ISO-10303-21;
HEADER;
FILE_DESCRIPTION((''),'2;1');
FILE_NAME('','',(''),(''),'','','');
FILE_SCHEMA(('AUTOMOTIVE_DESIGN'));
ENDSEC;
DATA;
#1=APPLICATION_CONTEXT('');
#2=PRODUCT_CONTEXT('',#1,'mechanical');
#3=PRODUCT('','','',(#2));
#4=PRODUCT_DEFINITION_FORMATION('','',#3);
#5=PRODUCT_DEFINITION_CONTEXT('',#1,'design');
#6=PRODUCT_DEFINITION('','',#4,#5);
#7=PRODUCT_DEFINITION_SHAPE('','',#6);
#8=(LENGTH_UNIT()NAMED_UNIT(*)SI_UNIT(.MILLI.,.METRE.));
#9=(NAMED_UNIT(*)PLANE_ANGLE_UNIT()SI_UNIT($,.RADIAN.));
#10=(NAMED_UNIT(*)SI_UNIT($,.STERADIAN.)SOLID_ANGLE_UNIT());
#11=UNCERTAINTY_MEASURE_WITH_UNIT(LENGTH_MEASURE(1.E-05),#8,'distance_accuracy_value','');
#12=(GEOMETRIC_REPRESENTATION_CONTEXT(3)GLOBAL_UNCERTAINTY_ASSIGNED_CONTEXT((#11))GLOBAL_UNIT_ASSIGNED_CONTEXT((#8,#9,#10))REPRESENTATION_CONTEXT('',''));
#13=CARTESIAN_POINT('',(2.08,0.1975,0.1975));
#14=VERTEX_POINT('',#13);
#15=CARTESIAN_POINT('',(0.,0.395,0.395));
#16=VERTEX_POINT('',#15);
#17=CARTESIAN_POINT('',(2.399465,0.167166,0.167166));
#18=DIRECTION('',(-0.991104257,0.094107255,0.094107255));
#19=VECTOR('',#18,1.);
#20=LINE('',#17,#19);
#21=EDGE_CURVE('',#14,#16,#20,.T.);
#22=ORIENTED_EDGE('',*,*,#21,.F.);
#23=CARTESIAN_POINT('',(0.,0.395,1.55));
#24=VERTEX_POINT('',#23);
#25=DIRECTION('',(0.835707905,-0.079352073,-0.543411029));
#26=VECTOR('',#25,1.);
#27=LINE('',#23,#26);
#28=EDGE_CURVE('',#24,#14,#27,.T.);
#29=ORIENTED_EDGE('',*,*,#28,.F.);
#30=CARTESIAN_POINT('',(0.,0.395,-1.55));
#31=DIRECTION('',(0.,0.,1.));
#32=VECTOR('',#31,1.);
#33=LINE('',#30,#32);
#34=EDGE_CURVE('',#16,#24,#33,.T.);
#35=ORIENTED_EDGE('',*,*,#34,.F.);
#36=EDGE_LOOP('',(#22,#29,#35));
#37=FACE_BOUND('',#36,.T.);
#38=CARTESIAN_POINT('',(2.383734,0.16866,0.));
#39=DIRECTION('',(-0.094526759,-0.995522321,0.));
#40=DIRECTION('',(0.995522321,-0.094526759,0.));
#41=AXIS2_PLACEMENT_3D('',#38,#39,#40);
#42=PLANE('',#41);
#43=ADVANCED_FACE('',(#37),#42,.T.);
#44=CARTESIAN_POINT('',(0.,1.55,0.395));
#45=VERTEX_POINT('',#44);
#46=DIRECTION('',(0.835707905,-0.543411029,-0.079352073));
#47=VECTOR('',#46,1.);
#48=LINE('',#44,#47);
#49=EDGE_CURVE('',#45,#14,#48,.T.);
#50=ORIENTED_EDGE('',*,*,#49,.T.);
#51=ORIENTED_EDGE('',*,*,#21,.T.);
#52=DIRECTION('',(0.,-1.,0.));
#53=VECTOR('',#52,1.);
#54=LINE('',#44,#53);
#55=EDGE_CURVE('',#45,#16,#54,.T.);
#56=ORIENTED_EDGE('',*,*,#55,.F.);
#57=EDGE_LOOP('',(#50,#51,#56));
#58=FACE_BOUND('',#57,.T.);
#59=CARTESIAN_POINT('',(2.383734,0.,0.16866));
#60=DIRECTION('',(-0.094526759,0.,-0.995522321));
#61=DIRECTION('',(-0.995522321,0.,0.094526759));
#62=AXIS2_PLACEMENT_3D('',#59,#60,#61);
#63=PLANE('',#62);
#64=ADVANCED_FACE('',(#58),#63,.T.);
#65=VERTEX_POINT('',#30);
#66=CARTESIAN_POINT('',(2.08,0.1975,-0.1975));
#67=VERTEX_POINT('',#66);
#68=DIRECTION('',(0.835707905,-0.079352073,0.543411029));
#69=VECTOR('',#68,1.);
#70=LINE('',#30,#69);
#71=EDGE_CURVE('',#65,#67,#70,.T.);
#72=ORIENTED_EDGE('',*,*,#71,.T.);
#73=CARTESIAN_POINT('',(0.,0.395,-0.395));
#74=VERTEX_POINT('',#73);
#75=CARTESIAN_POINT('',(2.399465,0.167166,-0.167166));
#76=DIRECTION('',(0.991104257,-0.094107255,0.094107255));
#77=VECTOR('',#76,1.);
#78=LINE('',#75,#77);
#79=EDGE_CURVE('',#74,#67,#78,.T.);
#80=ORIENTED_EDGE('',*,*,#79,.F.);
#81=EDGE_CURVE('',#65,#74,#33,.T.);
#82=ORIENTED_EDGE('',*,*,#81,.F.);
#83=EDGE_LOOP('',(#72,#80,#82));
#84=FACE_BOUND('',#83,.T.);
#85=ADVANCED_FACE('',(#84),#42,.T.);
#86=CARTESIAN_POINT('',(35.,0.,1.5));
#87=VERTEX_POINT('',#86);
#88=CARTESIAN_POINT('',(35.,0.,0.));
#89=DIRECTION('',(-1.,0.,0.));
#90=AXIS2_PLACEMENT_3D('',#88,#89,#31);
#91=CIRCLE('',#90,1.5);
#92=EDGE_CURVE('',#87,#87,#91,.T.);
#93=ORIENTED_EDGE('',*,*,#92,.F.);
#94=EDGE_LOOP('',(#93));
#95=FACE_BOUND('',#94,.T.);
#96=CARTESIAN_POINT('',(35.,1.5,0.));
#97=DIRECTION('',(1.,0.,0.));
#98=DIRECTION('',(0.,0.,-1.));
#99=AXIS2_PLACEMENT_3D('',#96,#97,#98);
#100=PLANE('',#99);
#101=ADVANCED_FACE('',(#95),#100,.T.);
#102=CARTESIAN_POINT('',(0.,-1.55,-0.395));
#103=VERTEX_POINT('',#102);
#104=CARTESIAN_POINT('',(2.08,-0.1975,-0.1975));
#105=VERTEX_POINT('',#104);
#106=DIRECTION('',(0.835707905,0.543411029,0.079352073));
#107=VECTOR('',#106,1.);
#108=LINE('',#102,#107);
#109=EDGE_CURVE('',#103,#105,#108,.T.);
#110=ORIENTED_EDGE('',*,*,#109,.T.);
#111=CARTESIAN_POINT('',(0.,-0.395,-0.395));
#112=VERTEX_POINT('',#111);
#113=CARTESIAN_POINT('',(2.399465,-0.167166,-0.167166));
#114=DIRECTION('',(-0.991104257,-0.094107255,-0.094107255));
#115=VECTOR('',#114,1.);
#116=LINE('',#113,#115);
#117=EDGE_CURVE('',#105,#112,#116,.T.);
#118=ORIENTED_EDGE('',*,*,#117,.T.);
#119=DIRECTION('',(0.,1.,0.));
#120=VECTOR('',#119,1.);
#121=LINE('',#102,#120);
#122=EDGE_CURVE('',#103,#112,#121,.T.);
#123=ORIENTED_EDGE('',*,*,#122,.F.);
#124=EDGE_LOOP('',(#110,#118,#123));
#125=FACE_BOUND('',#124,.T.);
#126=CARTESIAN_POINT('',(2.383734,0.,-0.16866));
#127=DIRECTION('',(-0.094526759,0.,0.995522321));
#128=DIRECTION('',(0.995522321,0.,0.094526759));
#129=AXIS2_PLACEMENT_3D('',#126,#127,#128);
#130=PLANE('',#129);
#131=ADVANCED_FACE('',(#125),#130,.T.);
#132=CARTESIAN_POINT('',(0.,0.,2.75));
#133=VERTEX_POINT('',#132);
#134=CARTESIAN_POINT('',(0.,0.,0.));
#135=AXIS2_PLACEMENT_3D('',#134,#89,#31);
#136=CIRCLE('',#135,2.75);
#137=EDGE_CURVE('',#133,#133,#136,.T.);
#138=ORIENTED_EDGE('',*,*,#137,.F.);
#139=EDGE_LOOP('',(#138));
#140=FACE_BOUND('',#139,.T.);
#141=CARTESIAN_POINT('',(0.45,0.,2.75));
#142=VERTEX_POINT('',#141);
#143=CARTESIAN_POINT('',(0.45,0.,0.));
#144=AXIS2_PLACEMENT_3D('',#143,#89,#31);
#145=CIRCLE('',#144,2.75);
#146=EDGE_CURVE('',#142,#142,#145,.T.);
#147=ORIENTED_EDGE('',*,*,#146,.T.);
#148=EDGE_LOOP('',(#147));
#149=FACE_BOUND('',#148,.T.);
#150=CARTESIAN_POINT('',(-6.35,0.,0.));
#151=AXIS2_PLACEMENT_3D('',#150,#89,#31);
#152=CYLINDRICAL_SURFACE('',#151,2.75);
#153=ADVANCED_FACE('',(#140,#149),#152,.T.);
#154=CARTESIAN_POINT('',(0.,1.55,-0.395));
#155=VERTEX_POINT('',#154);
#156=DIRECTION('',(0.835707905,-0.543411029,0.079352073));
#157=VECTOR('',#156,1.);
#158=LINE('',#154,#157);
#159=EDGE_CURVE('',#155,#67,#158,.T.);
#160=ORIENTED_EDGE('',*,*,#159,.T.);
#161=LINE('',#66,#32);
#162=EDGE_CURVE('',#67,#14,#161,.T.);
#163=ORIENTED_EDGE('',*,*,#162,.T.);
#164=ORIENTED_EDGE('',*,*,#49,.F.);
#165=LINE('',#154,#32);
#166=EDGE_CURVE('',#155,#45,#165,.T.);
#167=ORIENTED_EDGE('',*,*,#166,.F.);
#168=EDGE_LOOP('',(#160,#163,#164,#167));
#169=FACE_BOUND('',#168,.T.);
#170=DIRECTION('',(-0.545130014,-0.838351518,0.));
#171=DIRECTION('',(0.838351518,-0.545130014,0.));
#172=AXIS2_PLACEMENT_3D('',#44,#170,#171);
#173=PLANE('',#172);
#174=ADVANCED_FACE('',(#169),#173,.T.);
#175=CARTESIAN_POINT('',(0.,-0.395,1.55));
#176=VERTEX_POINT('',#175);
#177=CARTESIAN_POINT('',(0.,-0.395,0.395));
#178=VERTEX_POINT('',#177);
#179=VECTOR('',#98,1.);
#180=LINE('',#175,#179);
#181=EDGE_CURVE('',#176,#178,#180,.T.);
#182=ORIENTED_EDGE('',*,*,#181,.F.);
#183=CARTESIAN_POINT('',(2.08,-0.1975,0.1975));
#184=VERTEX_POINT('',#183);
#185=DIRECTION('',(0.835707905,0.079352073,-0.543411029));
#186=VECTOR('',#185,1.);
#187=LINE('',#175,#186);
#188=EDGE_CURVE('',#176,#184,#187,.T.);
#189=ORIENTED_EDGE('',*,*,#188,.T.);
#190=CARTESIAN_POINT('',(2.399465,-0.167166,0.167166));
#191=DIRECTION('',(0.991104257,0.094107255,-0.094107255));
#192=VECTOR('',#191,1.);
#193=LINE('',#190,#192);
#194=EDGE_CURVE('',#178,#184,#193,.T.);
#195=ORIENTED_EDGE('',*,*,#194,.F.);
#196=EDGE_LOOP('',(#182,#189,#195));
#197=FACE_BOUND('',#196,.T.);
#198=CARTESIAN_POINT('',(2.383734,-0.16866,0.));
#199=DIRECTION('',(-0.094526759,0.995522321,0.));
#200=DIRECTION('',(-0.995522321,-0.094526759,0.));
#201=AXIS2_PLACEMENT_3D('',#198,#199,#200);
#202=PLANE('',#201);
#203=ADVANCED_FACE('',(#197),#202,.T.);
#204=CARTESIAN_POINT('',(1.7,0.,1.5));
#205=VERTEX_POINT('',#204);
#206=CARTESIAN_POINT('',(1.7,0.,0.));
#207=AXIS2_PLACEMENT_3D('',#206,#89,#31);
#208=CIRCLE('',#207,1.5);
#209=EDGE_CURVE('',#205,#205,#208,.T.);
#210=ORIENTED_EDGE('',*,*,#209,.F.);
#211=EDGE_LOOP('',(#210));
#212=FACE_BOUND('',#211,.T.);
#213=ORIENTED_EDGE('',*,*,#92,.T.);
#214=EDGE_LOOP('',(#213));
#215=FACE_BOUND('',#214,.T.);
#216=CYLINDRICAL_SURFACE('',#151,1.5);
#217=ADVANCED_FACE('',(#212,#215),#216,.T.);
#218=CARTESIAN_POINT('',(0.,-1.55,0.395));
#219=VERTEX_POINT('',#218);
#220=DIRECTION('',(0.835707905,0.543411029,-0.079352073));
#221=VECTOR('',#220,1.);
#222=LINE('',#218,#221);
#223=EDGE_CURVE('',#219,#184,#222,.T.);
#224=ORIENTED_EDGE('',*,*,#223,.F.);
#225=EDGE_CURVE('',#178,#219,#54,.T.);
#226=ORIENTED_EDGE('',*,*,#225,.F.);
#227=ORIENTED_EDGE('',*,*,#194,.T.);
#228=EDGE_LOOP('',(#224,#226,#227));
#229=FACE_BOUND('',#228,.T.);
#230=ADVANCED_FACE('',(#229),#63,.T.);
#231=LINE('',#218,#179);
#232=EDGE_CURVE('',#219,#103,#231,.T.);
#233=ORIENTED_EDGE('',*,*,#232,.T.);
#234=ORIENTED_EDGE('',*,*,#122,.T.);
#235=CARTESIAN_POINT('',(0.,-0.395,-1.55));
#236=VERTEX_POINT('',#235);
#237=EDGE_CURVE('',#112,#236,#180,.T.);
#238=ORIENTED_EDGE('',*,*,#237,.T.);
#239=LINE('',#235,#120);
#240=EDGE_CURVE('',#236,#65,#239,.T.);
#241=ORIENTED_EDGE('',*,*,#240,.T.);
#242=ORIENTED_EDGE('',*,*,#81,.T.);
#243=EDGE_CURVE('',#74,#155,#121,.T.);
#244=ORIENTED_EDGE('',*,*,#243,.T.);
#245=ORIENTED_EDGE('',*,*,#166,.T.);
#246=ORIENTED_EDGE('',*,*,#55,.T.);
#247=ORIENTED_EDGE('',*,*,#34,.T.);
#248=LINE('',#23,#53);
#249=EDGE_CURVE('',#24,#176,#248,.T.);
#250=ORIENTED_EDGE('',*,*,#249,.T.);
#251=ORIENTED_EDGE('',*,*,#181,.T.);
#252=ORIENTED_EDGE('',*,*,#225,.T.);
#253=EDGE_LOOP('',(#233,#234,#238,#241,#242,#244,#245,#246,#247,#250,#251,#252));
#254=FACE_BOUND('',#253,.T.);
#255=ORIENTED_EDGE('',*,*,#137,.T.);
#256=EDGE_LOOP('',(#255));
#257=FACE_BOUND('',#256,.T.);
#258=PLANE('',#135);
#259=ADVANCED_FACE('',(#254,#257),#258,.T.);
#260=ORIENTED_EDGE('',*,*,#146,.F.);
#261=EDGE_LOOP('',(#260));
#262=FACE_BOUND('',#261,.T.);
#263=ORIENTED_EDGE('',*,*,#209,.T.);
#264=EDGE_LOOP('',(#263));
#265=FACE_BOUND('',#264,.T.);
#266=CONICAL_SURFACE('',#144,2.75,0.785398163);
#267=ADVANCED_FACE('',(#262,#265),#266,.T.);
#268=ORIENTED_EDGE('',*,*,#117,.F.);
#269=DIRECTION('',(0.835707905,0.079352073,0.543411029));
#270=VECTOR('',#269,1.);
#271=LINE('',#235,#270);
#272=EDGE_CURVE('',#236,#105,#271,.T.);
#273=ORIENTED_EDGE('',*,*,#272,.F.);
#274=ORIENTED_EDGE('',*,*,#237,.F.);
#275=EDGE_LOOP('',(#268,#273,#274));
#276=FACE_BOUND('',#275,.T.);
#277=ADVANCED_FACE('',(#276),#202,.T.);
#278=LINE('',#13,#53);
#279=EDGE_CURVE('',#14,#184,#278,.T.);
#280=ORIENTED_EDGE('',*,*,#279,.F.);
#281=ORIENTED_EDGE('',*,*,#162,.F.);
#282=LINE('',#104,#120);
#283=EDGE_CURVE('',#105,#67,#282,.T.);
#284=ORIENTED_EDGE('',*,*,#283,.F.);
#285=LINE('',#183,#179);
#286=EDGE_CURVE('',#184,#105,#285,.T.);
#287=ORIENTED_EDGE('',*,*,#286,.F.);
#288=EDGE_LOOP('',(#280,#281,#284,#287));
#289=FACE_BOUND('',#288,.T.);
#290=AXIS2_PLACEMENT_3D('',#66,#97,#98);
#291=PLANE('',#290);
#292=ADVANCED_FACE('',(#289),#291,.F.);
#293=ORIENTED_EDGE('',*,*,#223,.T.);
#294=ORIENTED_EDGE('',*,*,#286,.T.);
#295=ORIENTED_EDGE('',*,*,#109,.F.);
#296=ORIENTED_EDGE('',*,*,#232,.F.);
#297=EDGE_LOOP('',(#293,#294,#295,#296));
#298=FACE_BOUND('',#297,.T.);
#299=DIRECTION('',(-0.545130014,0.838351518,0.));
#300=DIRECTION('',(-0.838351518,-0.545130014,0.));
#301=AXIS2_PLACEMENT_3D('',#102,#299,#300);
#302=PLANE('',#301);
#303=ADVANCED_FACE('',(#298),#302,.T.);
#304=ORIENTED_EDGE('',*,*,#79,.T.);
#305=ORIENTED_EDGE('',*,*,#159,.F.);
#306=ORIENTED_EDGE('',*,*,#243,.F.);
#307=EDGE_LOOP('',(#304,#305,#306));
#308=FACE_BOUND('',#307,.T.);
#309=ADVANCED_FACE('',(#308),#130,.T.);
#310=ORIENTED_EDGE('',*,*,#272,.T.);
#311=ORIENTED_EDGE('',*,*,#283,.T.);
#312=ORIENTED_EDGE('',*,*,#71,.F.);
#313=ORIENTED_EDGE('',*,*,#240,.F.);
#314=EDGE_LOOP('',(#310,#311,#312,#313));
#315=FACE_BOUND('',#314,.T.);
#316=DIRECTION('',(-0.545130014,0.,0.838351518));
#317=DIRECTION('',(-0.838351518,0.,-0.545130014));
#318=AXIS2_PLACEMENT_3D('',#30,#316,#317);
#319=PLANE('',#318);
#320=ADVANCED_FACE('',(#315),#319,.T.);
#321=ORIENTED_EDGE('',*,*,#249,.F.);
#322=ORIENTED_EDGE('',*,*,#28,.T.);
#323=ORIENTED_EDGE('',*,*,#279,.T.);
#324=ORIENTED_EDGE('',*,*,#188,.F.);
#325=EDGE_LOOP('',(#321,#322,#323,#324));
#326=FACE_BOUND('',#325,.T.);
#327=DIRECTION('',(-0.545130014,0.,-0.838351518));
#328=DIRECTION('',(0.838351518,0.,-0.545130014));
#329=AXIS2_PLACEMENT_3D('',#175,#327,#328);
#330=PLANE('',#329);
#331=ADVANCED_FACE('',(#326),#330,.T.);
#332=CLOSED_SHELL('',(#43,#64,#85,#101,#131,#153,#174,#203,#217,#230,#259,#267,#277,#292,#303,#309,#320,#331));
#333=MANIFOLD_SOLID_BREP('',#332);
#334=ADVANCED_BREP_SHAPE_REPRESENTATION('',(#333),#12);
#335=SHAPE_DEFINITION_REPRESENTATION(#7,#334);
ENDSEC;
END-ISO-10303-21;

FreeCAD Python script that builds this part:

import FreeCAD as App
import Part
import Sketcher

V = App.Vector
Q = App.Units.Quantity


def add_polygon(sketch, points):
    """Adds a closed chain of lines whose ends are joined by coincident constraints."""
    first, n = sketch.GeometryCount, len(points)
    for a, b in zip(points, points[1:] + points[:1]):
        sketch.addGeometry(Part.LineSegment(App.Vector(*a, 0), App.Vector(*b, 0)), False)
    for i in range(n):
        sketch.addConstraint(Sketcher.Constraint("Coincident", first + i, 2, first + (i + 1) % n, 1))

doc = App.newDocument("Part")
body = doc.addObject("PartDesign::Body", "Body")

# Sketch on XY plane
sketch1 = doc.addObject("Sketcher::SketchObject", "Sketch")
body.addObject(sketch1)
sketch1.AttachmentSupport = (doc.XY_Plane, [""])
sketch1.MapMode = "FlatFace"
add_polygon(sketch1, [(0, 2.75), (0, 0), (35, 0), (35, 1.5), (1.7, 1.5), (0.45, 2.75)])  # lines 0-5
sketch1.addConstraint(Sketcher.Constraint("Vertical", 0))
sketch1.addConstraint(Sketcher.Constraint("Horizontal", 1))
sketch1.addConstraint(Sketcher.Constraint("Vertical", 2))
sketch1.addConstraint(Sketcher.Constraint("Horizontal", 3))
sketch1.addConstraint(Sketcher.Constraint("Horizontal", 5))
sketch1.addConstraint(Sketcher.Constraint("Coincident", 0, 2, -1, 1))
sketch1.addConstraint(Sketcher.Constraint("DistanceX", 1, 1, 1, 2, Q("35 mm")))
sketch1.addConstraint(Sketcher.Constraint("Angle", 4, Q("135 deg")))
sketch1.addConstraint(Sketcher.Constraint("DistanceX", 3, 2, 3, 1, Q("33.3 mm")))
sketch1.addConstraint(Sketcher.Constraint("DistanceY", 2, 1, 2, 2, Q("1.5 mm")))
sketch1.addConstraint(Sketcher.Constraint("DistanceX", 5, 2, 5, 1, Q("0.45 mm")))
revolution = doc.addObject("PartDesign::Revolution", "Revolution")
body.addObject(revolution)
revolution.Profile = sketch1
revolution.ReferenceAxis = (sketch1, ["H_Axis"])
revolution.Angle = 360

# Sketch on YZ plane
sketch2 = doc.addObject("Sketcher::SketchObject", "Sketch001")
body.addObject(sketch2)
sketch2.AttachmentSupport = (doc.YZ_Plane, [""])
sketch2.MapMode = "FlatFace"
add_polygon(sketch2, [(1.55, 0.395), (1.55, -0.395), (-1.55, -0.395), (-1.55, 0.395)])  # lines 0-3
sketch2.addConstraint(Sketcher.Constraint("Vertical", 0))
sketch2.addConstraint(Sketcher.Constraint("Horizontal", 1))
sketch2.addConstraint(Sketcher.Constraint("Vertical", 2))
sketch2.addConstraint(Sketcher.Constraint("Horizontal", 3))
sketch2.addConstraint(Sketcher.Constraint("Symmetric", 0, 2, 2, 2, -1, 1))
sketch2.addConstraint(Sketcher.Constraint("DistanceX", 1, 2, 1, 1, Q("3.1 mm")))
sketch2.addConstraint(Sketcher.Constraint("DistanceY", 0, 2, 0, 1, Q("0.79 mm")))

# Sketch on YZ plane
sketch3 = doc.addObject("Sketcher::SketchObject", "Sketch002")
body.addObject(sketch3)
sketch3.AttachmentSupport = (doc.YZ_Plane, [""])
sketch3.MapMode = "FlatFace"
sketch3.AttachmentOffset = App.Placement(V(0, 0, 2.08), App.Rotation())
add_polygon(sketch3, [(0.1975, 0.1975), (0.1975, -0.1975), (-0.1975, -0.1975), (-0.1975, 0.1975)])  # lines 0-3
sketch3.addConstraint(Sketcher.Constraint("Vertical", 0))
sketch3.addConstraint(Sketcher.Constraint("Horizontal", 1))
sketch3.addConstraint(Sketcher.Constraint("Vertical", 2))
sketch3.addConstraint(Sketcher.Constraint("Horizontal", 3))
sketch3.addConstraint(Sketcher.Constraint("Symmetric", 0, 2, 2, 2, -1, 1))
sketch3.addConstraint(Sketcher.Constraint("Equal", 3, 0))
sketch3.addConstraint(Sketcher.Constraint("DistanceX", 1, 2, 1, 1, Q("0.395 mm")))

subtractiveloft = doc.addObject("PartDesign::SubtractiveLoft", "SubtractiveLoft")
body.addObject(subtractiveloft)
subtractiveloft.Profile = sketch2
subtractiveloft.Sections = [sketch3]
doc.recompute()

polarpattern = doc.addObject("PartDesign::PolarPattern", "PolarPattern")
body.addObject(polarpattern)
polarpattern.Originals = [subtractiveloft]
polarpattern.Axis = (doc.X_Axis, [""])
polarpattern.Angle = 90
polarpattern.Occurrences = 2
body.Tip = polarpattern

doc.recompute()
